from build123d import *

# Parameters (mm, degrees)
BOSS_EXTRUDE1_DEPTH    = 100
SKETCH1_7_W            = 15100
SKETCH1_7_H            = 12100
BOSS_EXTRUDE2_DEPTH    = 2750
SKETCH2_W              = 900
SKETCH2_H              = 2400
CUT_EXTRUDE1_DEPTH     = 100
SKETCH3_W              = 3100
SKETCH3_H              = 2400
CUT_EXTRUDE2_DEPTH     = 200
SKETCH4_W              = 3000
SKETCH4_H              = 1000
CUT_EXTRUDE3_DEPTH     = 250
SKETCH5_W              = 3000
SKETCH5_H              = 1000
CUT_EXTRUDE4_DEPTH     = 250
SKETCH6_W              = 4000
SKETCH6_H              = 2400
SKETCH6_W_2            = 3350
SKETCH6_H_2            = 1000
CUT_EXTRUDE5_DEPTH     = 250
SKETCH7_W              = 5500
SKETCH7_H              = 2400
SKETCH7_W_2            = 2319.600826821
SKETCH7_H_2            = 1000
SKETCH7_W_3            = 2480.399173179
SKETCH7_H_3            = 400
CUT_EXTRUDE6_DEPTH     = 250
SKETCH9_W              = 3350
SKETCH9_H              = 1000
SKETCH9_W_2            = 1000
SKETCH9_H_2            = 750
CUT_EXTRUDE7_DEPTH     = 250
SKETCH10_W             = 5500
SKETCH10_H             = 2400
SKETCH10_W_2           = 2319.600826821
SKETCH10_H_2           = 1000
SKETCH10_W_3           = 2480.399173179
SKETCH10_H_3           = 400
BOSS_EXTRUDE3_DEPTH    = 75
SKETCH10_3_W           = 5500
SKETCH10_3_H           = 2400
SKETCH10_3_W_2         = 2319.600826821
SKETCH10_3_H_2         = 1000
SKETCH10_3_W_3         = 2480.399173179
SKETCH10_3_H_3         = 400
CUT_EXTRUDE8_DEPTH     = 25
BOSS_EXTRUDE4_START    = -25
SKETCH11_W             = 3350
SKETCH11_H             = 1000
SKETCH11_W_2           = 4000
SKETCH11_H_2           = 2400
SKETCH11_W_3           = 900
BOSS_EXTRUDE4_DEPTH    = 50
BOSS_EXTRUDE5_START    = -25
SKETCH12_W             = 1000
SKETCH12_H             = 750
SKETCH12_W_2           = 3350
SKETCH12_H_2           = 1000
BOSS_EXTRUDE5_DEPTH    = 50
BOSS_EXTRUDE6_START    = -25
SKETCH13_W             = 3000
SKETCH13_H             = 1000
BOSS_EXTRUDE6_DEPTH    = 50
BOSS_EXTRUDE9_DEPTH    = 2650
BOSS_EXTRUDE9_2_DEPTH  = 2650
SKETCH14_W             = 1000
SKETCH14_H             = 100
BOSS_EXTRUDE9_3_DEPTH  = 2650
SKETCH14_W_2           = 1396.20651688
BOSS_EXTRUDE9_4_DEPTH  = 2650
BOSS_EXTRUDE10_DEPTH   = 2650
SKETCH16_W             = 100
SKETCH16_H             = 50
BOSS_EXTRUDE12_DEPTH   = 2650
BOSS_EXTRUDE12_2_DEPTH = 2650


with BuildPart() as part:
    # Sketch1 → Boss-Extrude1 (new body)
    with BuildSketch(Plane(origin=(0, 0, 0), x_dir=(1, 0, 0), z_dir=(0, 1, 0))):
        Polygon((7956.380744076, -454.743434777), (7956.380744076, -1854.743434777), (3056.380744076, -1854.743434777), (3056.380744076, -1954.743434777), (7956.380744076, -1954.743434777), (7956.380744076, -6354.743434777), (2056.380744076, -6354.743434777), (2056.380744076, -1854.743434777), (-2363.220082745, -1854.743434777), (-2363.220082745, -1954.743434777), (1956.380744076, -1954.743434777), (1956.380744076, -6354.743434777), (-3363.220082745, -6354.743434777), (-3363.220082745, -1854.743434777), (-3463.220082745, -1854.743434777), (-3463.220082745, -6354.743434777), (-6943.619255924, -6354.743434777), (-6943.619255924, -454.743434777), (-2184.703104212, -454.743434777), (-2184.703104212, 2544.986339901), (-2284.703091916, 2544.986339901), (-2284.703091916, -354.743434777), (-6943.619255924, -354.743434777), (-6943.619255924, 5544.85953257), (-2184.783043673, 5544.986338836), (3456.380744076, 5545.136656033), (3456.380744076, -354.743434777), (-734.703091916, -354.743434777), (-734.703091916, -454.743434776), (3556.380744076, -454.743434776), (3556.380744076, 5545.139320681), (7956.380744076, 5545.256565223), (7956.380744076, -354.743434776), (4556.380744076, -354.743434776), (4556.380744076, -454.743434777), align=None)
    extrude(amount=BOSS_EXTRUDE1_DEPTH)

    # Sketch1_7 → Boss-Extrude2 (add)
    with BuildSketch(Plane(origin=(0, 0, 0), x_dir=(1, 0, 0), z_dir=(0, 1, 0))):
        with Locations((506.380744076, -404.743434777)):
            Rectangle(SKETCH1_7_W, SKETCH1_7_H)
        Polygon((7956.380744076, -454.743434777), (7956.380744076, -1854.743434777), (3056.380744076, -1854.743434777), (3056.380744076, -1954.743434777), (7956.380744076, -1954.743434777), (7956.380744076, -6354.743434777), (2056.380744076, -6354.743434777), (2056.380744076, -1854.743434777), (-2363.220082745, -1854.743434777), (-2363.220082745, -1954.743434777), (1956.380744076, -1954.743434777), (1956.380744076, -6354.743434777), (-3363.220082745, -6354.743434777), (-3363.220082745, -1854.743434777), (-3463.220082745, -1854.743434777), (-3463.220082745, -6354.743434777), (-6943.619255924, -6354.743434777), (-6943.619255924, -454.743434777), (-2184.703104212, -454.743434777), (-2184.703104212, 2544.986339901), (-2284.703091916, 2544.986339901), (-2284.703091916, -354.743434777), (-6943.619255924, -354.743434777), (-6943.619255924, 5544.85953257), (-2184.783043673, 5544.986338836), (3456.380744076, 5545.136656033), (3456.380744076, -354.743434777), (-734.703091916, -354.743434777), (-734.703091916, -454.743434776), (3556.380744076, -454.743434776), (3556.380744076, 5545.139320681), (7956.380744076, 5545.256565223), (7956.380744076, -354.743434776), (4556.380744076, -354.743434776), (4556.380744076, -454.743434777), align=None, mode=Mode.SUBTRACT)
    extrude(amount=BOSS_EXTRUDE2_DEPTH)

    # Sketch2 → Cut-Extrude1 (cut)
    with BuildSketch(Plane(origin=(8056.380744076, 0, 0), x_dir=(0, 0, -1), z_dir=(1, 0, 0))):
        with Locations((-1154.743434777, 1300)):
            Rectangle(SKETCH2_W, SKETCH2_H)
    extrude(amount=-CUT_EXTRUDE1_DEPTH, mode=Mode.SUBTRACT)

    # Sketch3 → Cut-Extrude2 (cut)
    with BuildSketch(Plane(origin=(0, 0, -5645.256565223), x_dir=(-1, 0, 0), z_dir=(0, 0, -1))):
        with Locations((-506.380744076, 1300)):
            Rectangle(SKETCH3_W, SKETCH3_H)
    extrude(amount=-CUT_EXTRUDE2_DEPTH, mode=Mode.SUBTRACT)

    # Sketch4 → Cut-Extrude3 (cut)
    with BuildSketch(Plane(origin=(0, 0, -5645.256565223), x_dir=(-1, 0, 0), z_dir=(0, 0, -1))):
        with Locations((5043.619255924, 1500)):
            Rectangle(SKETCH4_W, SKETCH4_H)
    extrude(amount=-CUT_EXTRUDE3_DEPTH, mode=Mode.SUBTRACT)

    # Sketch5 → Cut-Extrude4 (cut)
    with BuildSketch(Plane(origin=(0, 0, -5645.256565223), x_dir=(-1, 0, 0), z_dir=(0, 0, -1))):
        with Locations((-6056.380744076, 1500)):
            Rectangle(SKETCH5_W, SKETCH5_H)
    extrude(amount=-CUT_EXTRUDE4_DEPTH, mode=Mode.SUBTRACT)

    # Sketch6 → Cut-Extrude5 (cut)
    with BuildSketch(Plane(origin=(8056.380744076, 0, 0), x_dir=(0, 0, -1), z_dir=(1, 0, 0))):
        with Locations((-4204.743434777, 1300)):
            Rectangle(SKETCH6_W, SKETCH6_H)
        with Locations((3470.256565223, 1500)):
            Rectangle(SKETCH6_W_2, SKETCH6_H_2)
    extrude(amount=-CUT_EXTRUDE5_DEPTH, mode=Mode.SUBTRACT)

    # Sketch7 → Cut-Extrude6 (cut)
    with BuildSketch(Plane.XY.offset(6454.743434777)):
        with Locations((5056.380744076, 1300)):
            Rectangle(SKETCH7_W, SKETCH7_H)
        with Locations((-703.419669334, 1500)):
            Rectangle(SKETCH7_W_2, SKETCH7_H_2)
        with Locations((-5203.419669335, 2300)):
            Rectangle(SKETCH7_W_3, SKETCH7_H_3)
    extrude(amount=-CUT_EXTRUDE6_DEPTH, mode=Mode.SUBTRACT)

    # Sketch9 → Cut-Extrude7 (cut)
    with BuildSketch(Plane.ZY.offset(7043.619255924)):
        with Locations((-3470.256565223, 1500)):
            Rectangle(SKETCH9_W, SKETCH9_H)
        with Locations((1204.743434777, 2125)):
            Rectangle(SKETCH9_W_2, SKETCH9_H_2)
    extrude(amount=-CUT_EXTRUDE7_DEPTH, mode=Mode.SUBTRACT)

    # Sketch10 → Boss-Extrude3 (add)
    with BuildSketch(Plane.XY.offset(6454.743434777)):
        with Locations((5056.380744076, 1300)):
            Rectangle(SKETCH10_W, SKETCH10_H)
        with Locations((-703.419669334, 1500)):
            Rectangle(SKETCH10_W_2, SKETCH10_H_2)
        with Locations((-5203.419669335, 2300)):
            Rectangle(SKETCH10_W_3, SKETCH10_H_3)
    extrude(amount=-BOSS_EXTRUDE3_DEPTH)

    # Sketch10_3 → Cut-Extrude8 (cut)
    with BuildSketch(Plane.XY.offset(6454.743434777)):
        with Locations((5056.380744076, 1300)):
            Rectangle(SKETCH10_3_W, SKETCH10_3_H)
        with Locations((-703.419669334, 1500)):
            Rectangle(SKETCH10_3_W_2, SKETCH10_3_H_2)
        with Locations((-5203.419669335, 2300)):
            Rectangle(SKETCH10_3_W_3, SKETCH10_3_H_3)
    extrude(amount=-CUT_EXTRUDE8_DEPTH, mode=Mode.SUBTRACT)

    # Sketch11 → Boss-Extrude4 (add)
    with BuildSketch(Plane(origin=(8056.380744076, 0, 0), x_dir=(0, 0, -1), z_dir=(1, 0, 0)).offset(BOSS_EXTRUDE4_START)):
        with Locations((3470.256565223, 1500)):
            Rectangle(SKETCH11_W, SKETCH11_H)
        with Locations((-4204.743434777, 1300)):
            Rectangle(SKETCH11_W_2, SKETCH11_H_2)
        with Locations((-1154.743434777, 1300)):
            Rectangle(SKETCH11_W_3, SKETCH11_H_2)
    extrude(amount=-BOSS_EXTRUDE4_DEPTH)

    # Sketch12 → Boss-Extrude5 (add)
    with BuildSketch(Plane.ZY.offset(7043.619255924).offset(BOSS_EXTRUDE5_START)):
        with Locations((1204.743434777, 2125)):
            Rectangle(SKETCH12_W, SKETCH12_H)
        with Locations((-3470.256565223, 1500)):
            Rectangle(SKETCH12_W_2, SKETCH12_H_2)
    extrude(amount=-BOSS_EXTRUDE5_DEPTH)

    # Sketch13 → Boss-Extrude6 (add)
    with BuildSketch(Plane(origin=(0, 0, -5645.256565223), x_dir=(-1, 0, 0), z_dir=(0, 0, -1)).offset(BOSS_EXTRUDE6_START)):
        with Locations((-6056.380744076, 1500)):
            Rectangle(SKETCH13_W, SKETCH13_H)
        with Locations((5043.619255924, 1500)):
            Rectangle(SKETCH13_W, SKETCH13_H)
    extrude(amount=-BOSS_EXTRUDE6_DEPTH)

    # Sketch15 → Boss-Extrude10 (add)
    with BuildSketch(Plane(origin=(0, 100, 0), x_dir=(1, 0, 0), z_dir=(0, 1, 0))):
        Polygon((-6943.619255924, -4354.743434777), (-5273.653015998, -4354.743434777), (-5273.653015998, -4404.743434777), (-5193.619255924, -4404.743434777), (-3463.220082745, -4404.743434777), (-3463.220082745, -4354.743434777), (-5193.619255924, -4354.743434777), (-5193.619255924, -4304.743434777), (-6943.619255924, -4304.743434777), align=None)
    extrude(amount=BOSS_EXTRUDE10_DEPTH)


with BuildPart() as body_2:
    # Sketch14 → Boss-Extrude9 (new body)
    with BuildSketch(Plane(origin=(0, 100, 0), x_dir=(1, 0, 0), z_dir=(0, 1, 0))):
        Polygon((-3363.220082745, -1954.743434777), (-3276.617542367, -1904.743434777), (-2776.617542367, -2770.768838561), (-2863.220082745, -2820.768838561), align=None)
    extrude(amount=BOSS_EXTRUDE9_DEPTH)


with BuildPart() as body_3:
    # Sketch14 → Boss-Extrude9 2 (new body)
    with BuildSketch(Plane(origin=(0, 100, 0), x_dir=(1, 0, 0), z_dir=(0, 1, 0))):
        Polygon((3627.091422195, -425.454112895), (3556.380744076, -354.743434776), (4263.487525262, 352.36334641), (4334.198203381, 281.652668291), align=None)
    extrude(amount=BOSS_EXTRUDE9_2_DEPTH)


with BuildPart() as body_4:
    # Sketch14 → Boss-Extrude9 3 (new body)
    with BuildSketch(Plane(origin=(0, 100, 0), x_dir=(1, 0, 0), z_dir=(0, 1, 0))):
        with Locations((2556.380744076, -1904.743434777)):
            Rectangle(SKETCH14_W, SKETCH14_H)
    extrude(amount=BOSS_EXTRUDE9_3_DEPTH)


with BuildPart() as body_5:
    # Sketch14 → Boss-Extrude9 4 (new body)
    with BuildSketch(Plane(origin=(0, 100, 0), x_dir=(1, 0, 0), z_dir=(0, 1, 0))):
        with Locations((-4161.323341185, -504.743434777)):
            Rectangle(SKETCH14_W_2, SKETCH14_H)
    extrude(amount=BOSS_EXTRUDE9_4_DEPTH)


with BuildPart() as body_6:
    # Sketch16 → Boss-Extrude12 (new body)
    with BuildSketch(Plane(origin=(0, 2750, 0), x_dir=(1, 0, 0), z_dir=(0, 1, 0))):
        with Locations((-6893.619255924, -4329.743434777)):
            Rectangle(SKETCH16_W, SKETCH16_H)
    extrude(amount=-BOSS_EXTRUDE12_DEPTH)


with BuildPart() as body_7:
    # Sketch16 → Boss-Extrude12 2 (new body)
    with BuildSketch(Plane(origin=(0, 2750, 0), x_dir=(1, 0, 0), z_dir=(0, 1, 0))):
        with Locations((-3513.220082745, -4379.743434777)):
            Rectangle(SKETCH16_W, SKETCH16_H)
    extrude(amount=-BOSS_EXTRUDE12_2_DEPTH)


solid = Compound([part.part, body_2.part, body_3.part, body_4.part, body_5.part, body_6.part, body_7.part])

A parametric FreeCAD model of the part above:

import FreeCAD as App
import Part
import Sketcher
from FreeCAD import Vector
Q = App.Units.Quantity


def add_polygon(sketch, points):
    """Adds a closed chain of lines whose ends are joined by coincident constraints."""
    first, n = sketch.GeometryCount, len(points)
    for a, b in zip(points, points[1:] + points[:1]):
        sketch.addGeometry(Part.LineSegment(App.Vector(*a, 0), App.Vector(*b, 0)), False)
    for i in range(n):
        sketch.addConstraint(Sketcher.Constraint("Coincident", first + i, 2, first + (i + 1) % n, 1))

doc = App.newDocument("Part")
params = doc.addObject("Spreadsheet::Sheet", "Params")
for row, (alias, value) in enumerate([
    ("sketch1_width", "3400 mm"),
    ("sketch1_width2", "100 mm"),
    ("sketch1_width3", "5900 mm"),
    ("sketch1_width4", "4900 mm"),
    ("sketch1_height", "1400 mm"),
    ("pad1_length", "100 mm"),
    ("sketch2_width", "15100 mm"),
    ("sketch2_width2", "3400 mm"),
    ("sketch2_width3", "4900 mm"),
    ("sketch2_width4", "5900 mm"),
    ("sketch2_width5", "100 mm"),
    ("pad2_length", "2750 mm"),
    ("sketch3_width", "2400 mm"),
    ("sketch3_height", "900 mm"),
    ("pocket1_length", "100 mm"),
    ("sketch4_width", "3100 mm"),
    ("sketch4_height", "2400 mm"),
    ("pocket2_length", "200 mm"),
    ("sketch5_width", "3000 mm"),
    ("sketch5_height", "1000 mm"),
    ("pocket3_length", "250 mm"),
    ("sketch6_width", "3000 mm"),
    ("sketch6_height", "1000 mm"),
    ("pocket4_length", "250 mm"),
    ("sketch7_width", "2400 mm"),
    ("sketch7_width2", "1000 mm"),
    ("sketch7_height", "4000 mm"),
    ("sketch7_height2", "3350 mm"),
    ("pocket5_length", "250 mm"),
    ("sketch8_width", "5500 mm"),
    ("sketch8_height", "2400 mm"),
    ("sketch8_height2", "1000 mm"),
    ("sketch8_height3", "400 mm"),
    ("pocket6_length", "250 mm"),
    ("sketch9_width", "1000 mm"),
    ("sketch9_width2", "750 mm"),
    ("sketch9_height", "3350 mm"),
    ("pocket7_length", "250 mm"),
    ("sketch10_width", "5500 mm"),
    ("sketch10_height", "2400 mm"),
    ("sketch10_height2", "1000 mm"),
    ("sketch10_height3", "400 mm"),
    ("pad3_length", "75 mm"),
    ("sketch11_width", "5500 mm"),
    ("sketch11_height", "2400 mm"),
    ("sketch11_height2", "1000 mm"),
    ("sketch11_height3", "400 mm"),
    ("pocket8_length", "25 mm"),
    ("sketch12_width", "1000 mm"),
    ("sketch12_width2", "2400 mm"),
    ("sketch12_height", "3350 mm"),
    ("sketch12_height2", "4000 mm"),
    ("sketch12_height3", "900 mm"),
    ("pad4_length", "50 mm"),
    ("sketch13_width", "750 mm"),
    ("sketch13_width2", "1000 mm"),
    ("sketch13_height", "3350 mm"),
    ("pad5_length", "50 mm"),
    ("sketch14_width", "3000 mm"),
    ("sketch14_height", "1000 mm"),
    ("pad6_length", "50 mm"),
    ("sketch15_width", "1750 mm"),
    ("sketch15_height", "50 mm"),
    ("pad7_length", "2650 mm"),
    ("sketch16_length", "100 mm"),
    ("sketch16_length2", "1000 mm"),
    ("pad8_length", "2650 mm"),
    ("sketch17_length", "100 mm"),
    ("sketch17_length2", "1000 mm"),
    ("pad9_length", "2650 mm"),
    ("sketch18_width", "1000 mm"),
    ("sketch18_height", "100 mm"),
    ("pad10_length", "2650 mm"),
    ("sketch19_height", "100 mm"),
    ("pad11_length", "2650 mm"),
    ("sketch20_width", "100 mm"),
    ("sketch20_height", "50 mm"),
    ("pad12_length", "2650 mm"),
    ("sketch21_width", "100 mm"),
    ("sketch21_height", "50 mm"),
    ("pad13_length", "2650 mm"),
], start=1):
    params.set(f"A{row}", alias)
    params.set(f"B{row}", "=" + value)
    params.setAlias(f"B{row}", alias)

body = doc.addObject("PartDesign::Body", "Body")

sketch1 = body.newObject("Sketcher::SketchObject", "Sketch")
sketch1.AttachmentSupport = (doc.getObject("XZ_Plane"), [""])
sketch1.MapMode = "FlatFace"
add_polygon(sketch1, [(7956.380744, 1854.743435), (7956.380744, 454.743435), (4556.380744, 454.743435), (4556.380744, 354.743435), (7956.380744, 354.743435), (7956.380744, -5545.256565), (3556.380744, -5545.139321), (3556.380744, 454.743435), (-734.703092, 454.743435), (-734.703092, 354.743435), (3456.380744, 354.743435), (3456.380744, -5545.136656), (-6943.619256, -5544.859533), (-6943.619256, 354.743435), (-2284.703092, 354.743435), (-2284.703092, -2544.98634), (-2184.703104, -2544.98634), (-2184.703104, 454.743435), (-6943.619256, 454.743435), (-6943.619256, 6354.743435), (-3463.220083, 6354.743435), (-3463.220083, 1854.743435), (-3363.220083, 1854.743435), (-3363.220083, 6354.743435), (1956.380744, 6354.743435), (1956.380744, 1954.743435), (-2363.220083, 1954.743435), (-2363.220083, 1854.743435), (2056.380744, 1854.743435), (2056.380744, 6354.743435), (7956.380744, 6354.743435), (7956.380744, 1954.743435), (3056.380744, 1954.743435), (3056.380744, 1854.743435)])
sketch1.addConstraint([
    Sketcher.Constraint("Vertical", 0),
    Sketcher.Constraint("Horizontal", 1),
    Sketcher.Constraint("Vertical", 2),
    Sketcher.Constraint("Horizontal", 3),
    Sketcher.Constraint("Vertical", 4),
    Sketcher.Constraint("Vertical", 6),
    Sketcher.Constraint("Horizontal", 7),
    Sketcher.Constraint("Vertical", 8),
    Sketcher.Constraint("Horizontal", 9),
    Sketcher.Constraint("Vertical", 10),
    Sketcher.Constraint("Vertical", 12),
    Sketcher.Constraint("Horizontal", 13),
    Sketcher.Constraint("Vertical", 14),
    Sketcher.Constraint("Horizontal", 15),
    Sketcher.Constraint("Vertical", 16),
    Sketcher.Constraint("Horizontal", 17),
    Sketcher.Constraint("Vertical", 18),
    Sketcher.Constraint("Horizontal", 19),
    Sketcher.Constraint("Vertical", 20),
    Sketcher.Constraint("Horizontal", 21),
    Sketcher.Constraint("Vertical", 22),
    Sketcher.Constraint("Horizontal", 23),
    Sketcher.Constraint("Vertical", 24),
    Sketcher.Constraint("Horizontal", 25),
    Sketcher.Constraint("Vertical", 26),
    Sketcher.Constraint("Horizontal", 27),
    Sketcher.Constraint("Vertical", 28),
    Sketcher.Constraint("Horizontal", 29),
    Sketcher.Constraint("Vertical", 30),
    Sketcher.Constraint("Horizontal", 31),
    Sketcher.Constraint("Vertical", 32),
    Sketcher.Constraint("Horizontal", 33),
    Sketcher.Constraint("Parallel", 5, 11),
    Sketcher.Constraint("Horizontal", 1, 2, 6, 2),
    Sketcher.Constraint("Horizontal", 3, 2, 8, 2),
    Sketcher.Constraint("Horizontal", 9, 2, 12, 2),
    Sketcher.Constraint("Horizontal", 7, 2, 16, 2),
    Sketcher.Constraint("Horizontal", 19, 2, 22, 2),
    Sketcher.Constraint("Horizontal", 21, 2, 26, 2),
    Sketcher.Constraint("Horizontal", 23, 2, 28, 2),
    Sketcher.Constraint("Horizontal", 25, 2, 30, 2),
    Sketcher.Constraint("Horizontal", 27, 2, 32, 2),
    Sketcher.Constraint("Vertical", 0, 2, 3, 2),
    Sketcher.Constraint("Vertical", 12, 2, 17, 2),
    Sketcher.Constraint("Vertical", 4, 2, 29, 2),
    Sketcher.Constraint("Equal", 21, 2),
    Sketcher.Constraint("Equal", 29, 4),
    Sketcher.Constraint("Equal", 4, 18),
    Sketcher.Constraint("Equal", 8, 26),
    Sketcher.Constraint("DistanceX", 1, 2, 1, 1, Q("3400 mm")),
    Sketcher.Constraint("DistanceX", 21, 1, 21, 2, Q("100 mm")),
    Sketcher.Constraint("DistanceX", 29, 1, 29, 2, Q("5900 mm")),
    Sketcher.Constraint("DistanceX", 31, 2, 31, 1, Q("4900 mm")),
    Sketcher.Constraint("DistanceY", 0, 2, 0, 1, Q("1400 mm")),
    Sketcher.Constraint("Distance", 5, Q("4400.000002 mm")),
    Sketcher.Constraint("DistanceX", 9, 2, 6, 2, Q("100 mm")),
    Sketcher.Constraint("DistanceX", 11, 2, 10, 2, Q("10400 mm")),
    Sketcher.Constraint("DistanceX", 13, 2, 8, 2, Q("1550 mm")),
    Sketcher.Constraint("DistanceX", 23, 2, 6, 2, Q("1600 mm")),
    Sketcher.Constraint("DistanceX", 21, 2, 25, 2, Q("1000 mm")),
    Sketcher.Constraint("DistanceX", 17, 2, 17, 1, Q("4758.916152 mm")),
    Sketcher.Constraint("DistanceY", 10, 2, 10, 1, Q("5899.880091 mm")),
    Sketcher.Constraint("DistanceX", 7, 2, 7, 1, Q("4291.083836 mm")),
    Sketcher.Constraint("DistanceX", 19, 1, 19, 2, Q("3480.399173 mm")),
    Sketcher.Constraint("DistanceY", 6, 1, 6, 2, Q("5999.882755 mm")),
    Sketcher.Constraint("DistanceY", 14, 2, 14, 1, Q("2899.729775 mm")),
    Sketcher.Constraint("DistanceY", 5, 2, -1, 1, Q("5545.139321 mm")),
    Sketcher.Constraint("DistanceX", 7, 2, -1, 1, Q("734.703092 mm")),
])
sketch1.setExpression("Constraints[83]", "Params.sketch1_width")
sketch1.setExpression("Constraints[84]", "Params.sketch1_width2")
sketch1.setExpression("Constraints[85]", "Params.sketch1_width3")
sketch1.setExpression("Constraints[86]", "Params.sketch1_width4")
sketch1.setExpression("Constraints[87]", "Params.sketch1_height")
pad1 = body.newObject("PartDesign::Pad", "Pad")
pad1.Profile = sketch1
pad1.setExpression("Length", "Params.pad1_length")
pad1.Reversed = True

sketch2 = body.newObject("Sketcher::SketchObject", "Sketch001")
sketch2.AttachmentSupport = (doc.getObject("XZ_Plane"), [""])
sketch2.MapMode = "FlatFace"
add_polygon(sketch2, [(-7043.619256, -5645.256565), (-7043.619256, 6454.743435), (8056.380744, 6454.743435), (8056.380744, -5645.256565)])
add_polygon(sketch2, [(4556.380744, 454.743435), (7956.380744, 454.743435), (7956.380744, 1854.743435), (3056.380744, 1854.743435), (3056.380744, 1954.743435), (7956.380744, 1954.743435), (7956.380744, 6354.743435), (2056.380744, 6354.743435), (2056.380744, 1854.743435), (-2363.220083, 1854.743435), (-2363.220083, 1954.743435), (1956.380744, 1954.743435), (1956.380744, 6354.743435), (-3363.220083, 6354.743435), (-3363.220083, 1854.743435), (-3463.220083, 1854.743435), (-3463.220083, 6354.743435), (-6943.619256, 6354.743435), (-6943.619256, 454.743435), (-2184.703104, 454.743435), (-2184.703104, -2544.98634), (-2284.703092, -2544.98634), (-2284.703092, 354.743435), (-6943.619256, 354.743435), (-6943.619256, -5544.859533), (3456.380744, -5545.136656), (3456.380744, 354.743435), (-734.703092, 354.743435), (-734.703092, 454.743435), (3556.380744, 454.743435), (3556.380744, -5545.139321), (7956.380744, -5545.256565), (7956.380744, 354.743435), (4556.380744, 354.743435)])
sketch2.addConstraint([
    Sketcher.Constraint("Vertical", 0),
    Sketcher.Constraint("Horizontal", 1),
    Sketcher.Constraint("Vertical", 2),
    Sketcher.Constraint("Horizontal", 3),
    Sketcher.Constraint("Horizontal", 4),
    Sketcher.Constraint("Vertical", 5),
    Sketcher.Constraint("Horizontal", 6),
    Sketcher.Constraint("Vertical", 7),
    Sketcher.Constraint("Horizontal", 8),
    Sketcher.Constraint("Vertical", 9),
    Sketcher.Constraint("Horizontal", 10),
    Sketcher.Constraint("Vertical", 11),
    Sketcher.Constraint("Horizontal", 12),
    Sketcher.Constraint("Vertical", 13),
    Sketcher.Constraint("Horizontal", 14),
    Sketcher.Constraint("Vertical", 15),
    Sketcher.Constraint("Horizontal", 16),
    Sketcher.Constraint("Vertical", 17),
    Sketcher.Constraint("Horizontal", 18),
    Sketcher.Constraint("Vertical", 19),
    Sketcher.Constraint("Horizontal", 20),
    Sketcher.Constraint("Vertical", 21),
    Sketcher.Constraint("Horizontal", 22),
    Sketcher.Constraint("Vertical", 23),
    Sketcher.Constraint("Horizontal", 24),
    Sketcher.Constraint("Vertical", 25),
    Sketcher.Constraint("Horizontal", 26),
    Sketcher.Constraint("Vertical", 27),
    Sketcher.Constraint("Vertical", 29),
    Sketcher.Constraint("Horizontal", 30),
    Sketcher.Constraint("Vertical", 31),
    Sketcher.Constraint("Horizontal", 32),
    Sketcher.Constraint("Vertical", 33),
    Sketcher.Constraint("Vertical", 35),
    Sketcher.Constraint("Horizontal", 36),
    Sketcher.Constraint("Vertical", 37),
    Sketcher.Constraint("Parallel", 28, 34),
    Sketcher.Constraint("Horizontal", 6, 2, 11, 2),
    Sketcher.Constraint("Horizontal", 8, 2, 13, 2),
    Sketcher.Constraint("Horizontal", 10, 2, 15, 2),
    Sketcher.Constraint("Horizontal", 12, 2, 17, 2),
    Sketcher.Constraint("Horizontal", 16, 2, 19, 2),
    Sketcher.Constraint("Horizontal", 4, 2, 21, 2),
    Sketcher.Constraint("Horizontal", 26, 2, 29, 2),
    Sketcher.Constraint("Horizontal", 22, 2, 31, 2),
    Sketcher.Constraint("Horizontal", 30, 2, 35, 2),
    Sketcher.Constraint("Vertical", 5, 2, 8, 2),
    Sketcher.Constraint("Vertical", 21, 2, 26, 2),
    Sketcher.Constraint("Vertical", 9, 2, 34, 2),
    Sketcher.Constraint("Equal", 18, 7),
    Sketcher.Constraint("Equal", 10, 21),
    Sketcher.Constraint("Equal", 13, 31),
    Sketcher.Constraint("Equal", 21, 35),
    Sketcher.Constraint("DistanceX", 1, 1, 1, 2, Q("15100 mm")),
    Sketcher.Constraint("DistanceX", 4, 1, 4, 2, Q("3400 mm")),
    Sketcher.Constraint("DistanceX", 6, 2, 6, 1, Q("4900 mm")),
    Sketcher.Constraint("DistanceX", 10, 2, 10, 1, Q("5900 mm")),
    Sketcher.Constraint("DistanceX", 18, 2, 18, 1, Q("100 mm")),
    Sketcher.Constraint("DistanceY", 0, 1, 0, 2, Q("12100 mm")),
    Sketcher.Constraint("DistanceY", 5, 1, 5, 2, Q("1400 mm")),
    Sketcher.Constraint("Distance", 34, Q("4400.000002 mm")),
    Sketcher.Constraint("DistanceX", 4, 2, 1, 2, Q("100 mm")),
    Sketcher.Constraint("DistanceY", 4, 2, 1, 2, Q("6000 mm")),
    Sketcher.Constraint("DistanceX", 14, 2, 11, 2, Q("100 mm")),
    Sketcher.Constraint("DistanceX", 16, 2, 13, 2, Q("1000 mm")),
    Sketcher.Constraint("DistanceX", 0, 2, 20, 2, Q("100 mm")),
    Sketcher.Constraint("DistanceX", 28, 2, 2, 2, Q("4600 mm")),
    Sketcher.Constraint("DistanceX", 25, 2, 30, 2, Q("1550 mm")),
    Sketcher.Constraint("DistanceX", 22, 1, 22, 2, Q("4758.916152 mm")),
    Sketcher.Constraint("DistanceY", 29, 1, 29, 2, Q("5899.880091 mm")),
    Sketcher.Constraint("DistanceX", 12, 2, 12, 1, Q("4419.600827 mm")),
    Sketcher.Constraint("DistanceX", 24, 2, 24, 1, Q("99.999988 mm")),
    Sketcher.Constraint("DistanceY", 23, 2, 23, 1, Q("2999.729775 mm")),
    Sketcher.Constraint("DistanceY", 27, 2, 27, 1, Q("5899.602967 mm")),
    Sketcher.Constraint("DistanceY", 23, 2, -1, 1, Q("2544.98634 mm")),
    Sketcher.Constraint("DistanceX", 24, 2, -1, 1, Q("2284.703092 mm")),
])
sketch2.setExpression("Constraints[91]", "Params.sketch2_width")
sketch2.setExpression("Constraints[92]", "Params.sketch2_width2")
sketch2.setExpression("Constraints[93]", "Params.sketch2_width3")
sketch2.setExpression("Constraints[94]", "Params.sketch2_width4")
sketch2.setExpression("Constraints[95]", "Params.sketch2_width5")
pad2 = body.newObject("PartDesign::Pad", "Pad001")
pad2.Profile = sketch2
pad2.setExpression("Length", "Params.pad2_length")
pad2.Reversed = True

sketch3 = body.newObject("Sketcher::SketchObject", "Sketch002")
sketch3.AttachmentSupport = (doc.getObject("YZ_Plane"), [""])
sketch3.MapMode = "FlatFace"
sketch3.AttachmentOffset = App.Placement(Vector(0, 0, 8056.380744), App.Rotation())
add_polygon(sketch3, [(2500, 1604.743435), (100, 1604.743435), (100, 704.743435), (2500, 704.743435)])
sketch3.addConstraint([
    Sketcher.Constraint("Horizontal", 0),
    Sketcher.Constraint("Vertical", 1),
    Sketcher.Constraint("Horizontal", 2),
    Sketcher.Constraint("Vertical", 3),
    Sketcher.Constraint("DistanceX", 0, 2, 0, 1, Q("2400 mm")),
    Sketcher.Constraint("DistanceY", 1, 2, 1, 1, Q("900 mm")),
    Sketcher.Constraint("DistanceX", -1, 1, 0, 2, Q("100 mm")),
    Sketcher.Constraint("DistanceY", -1, 1, 0, 2, Q("1604.743435 mm")),
])
sketch3.setExpression("Constraints[8]", "Params.sketch3_width")
sketch3.setExpression("Constraints[9]", "Params.sketch3_height")
pocket1 = body.newObject("PartDesign::Pocket", "Pocket")
pocket1.Profile = sketch3
pocket1.setExpression("Length", "Params.pocket1_length")

sketch4 = body.newObject("Sketcher::SketchObject", "Sketch003")
sketch4.AttachmentSupport = (doc.getObject("XY_Plane"), [""])
sketch4.MapMode = "FlatFace"
sketch4.AttachmentOffset = App.Placement(Vector(0, 0, -5645.256565), App.Rotation())
add_polygon(sketch4, [(2056.380744, 2500), (2056.380744, 100), (-1043.619256, 100), (-1043.619256, 2500)])
sketch4.addConstraint([
    Sketcher.Constraint("Vertical", 0),
    Sketcher.Constraint("Horizontal", 1),
    Sketcher.Constraint("Vertical", 2),
    Sketcher.Constraint("Horizontal", 3),
    Sketcher.Constraint("DistanceX", 1, 2, 1, 1, Q("3100 mm")),
    Sketcher.Constraint("DistanceY", 0, 2, 0, 1, Q("2400 mm")),
    Sketcher.Constraint("DistanceY", -1, 1, 0, 2, Q("100 mm")),
    Sketcher.Constraint("DistanceX", -1, 1, 0, 2, Q("2056.380744 mm")),
])
sketch4.setExpression("Constraints[8]", "Params.sketch4_width")
sketch4.setExpression("Constraints[9]", "Params.sketch4_height")
pocket2 = body.newObject("PartDesign::Pocket", "Pocket001")
pocket2.Profile = sketch4
pocket2.setExpression("Length", "Params.pocket2_length")
pocket2.Reversed = True

sketch5 = body.newObject("Sketcher::SketchObject", "Sketch004")
sketch5.AttachmentSupport = (doc.getObject("XY_Plane"), [""])
sketch5.MapMode = "FlatFace"
sketch5.AttachmentOffset = App.Placement(Vector(0, 0, -5645.256565), App.Rotation())
add_polygon(sketch5, [(-3543.619256, 2000), (-3543.619256, 1000), (-6543.619256, 1000), (-6543.619256, 2000)])
sketch5.addConstraint([
    Sketcher.Constraint("Vertical", 0),
    Sketcher.Constraint("Horizontal", 1),
    Sketcher.Constraint("Vertical", 2),
    Sketcher.Constraint("Horizontal", 3),
    Sketcher.Constraint("DistanceX", 1, 2, 1, 1, Q("3000 mm")),
    Sketcher.Constraint("DistanceY", 0, 2, 0, 1, Q("1000 mm")),
    Sketcher.Constraint("DistanceY", -1, 1, 0, 2, Q("1000 mm")),
    Sketcher.Constraint("DistanceX", 0, 2, -1, 1, Q("3543.619256 mm")),
])
sketch5.setExpression("Constraints[8]", "Params.sketch5_width")
sketch5.setExpression("Constraints[9]", "Params.sketch5_height")
pocket3 = body.newObject("PartDesign::Pocket", "Pocket002")
pocket3.Profile = sketch5
pocket3.setExpression("Length", "Params.pocket3_length")
pocket3.Reversed = True

sketch6 = body.newObject("Sketcher::SketchObject", "Sketch005")
sketch6.AttachmentSupport = (doc.getObject("XY_Plane"), [""])
sketch6.MapMode = "FlatFace"
sketch6.AttachmentOffset = App.Placement(Vector(0, 0, -5645.256565), App.Rotation())
add_polygon(sketch6, [(7556.380744, 2000), (7556.380744, 1000), (4556.380744, 1000), (4556.380744, 2000)])
sketch6.addConstraint([
    Sketcher.Constraint("Vertical", 0),
    Sketcher.Constraint("Horizontal", 1),
    Sketcher.Constraint("Vertical", 2),
    Sketcher.Constraint("Horizontal", 3),
    Sketcher.Constraint("DistanceX", 1, 2, 1, 1, Q("3000 mm")),
    Sketcher.Constraint("DistanceY", 0, 2, 0, 1, Q("1000 mm")),
    Sketcher.Constraint("DistanceY", -1, 1, 0, 2, Q("1000 mm")),
    Sketcher.Constraint("DistanceX", -1, 1, 0, 2, Q("7556.380744 mm")),
])
sketch6.setExpression("Constraints[8]", "Params.sketch6_width")
sketch6.setExpression("Constraints[9]", "Params.sketch6_height")
pocket4 = body.newObject("PartDesign::Pocket", "Pocket003")
pocket4.Profile = sketch6
pocket4.setExpression("Length", "Params.pocket4_length")
pocket4.Reversed = True

sketch7 = body.newObject("Sketcher::SketchObject", "Sketch006")
sketch7.AttachmentSupport = (doc.getObject("YZ_Plane"), [""])
sketch7.MapMode = "FlatFace"
sketch7.AttachmentOffset = App.Placement(Vector(0, 0, 8056.380744), App.Rotation())
add_polygon(sketch7, [(2500, 6204.743435), (100, 6204.743435), (100, 2204.743435), (2500, 2204.743435)])
add_polygon(sketch7, [(2000, -1795.256565), (1000, -1795.256565), (1000, -5145.256565), (2000, -5145.256565)])
sketch7.addConstraint([
    Sketcher.Constraint("Horizontal", 0),
    Sketcher.Constraint("Vertical", 1),
    Sketcher.Constraint("Horizontal", 2),
    Sketcher.Constraint("Vertical", 3),
    Sketcher.Constraint("Horizontal", 4),
    Sketcher.Constraint("Vertical", 5),
    Sketcher.Constraint("Horizontal", 6),
    Sketcher.Constraint("Vertical", 7),
    Sketcher.Constraint("DistanceX", 0, 2, 0, 1, Q("2400 mm")),
    Sketcher.Constraint("DistanceX", 4, 2, 4, 1, Q("1000 mm")),
    Sketcher.Constraint("DistanceY", 1, 2, 1, 1, Q("4000 mm")),
    Sketcher.Constraint("DistanceY", 5, 2, 5, 1, Q("3350 mm")),
    Sketcher.Constraint("DistanceX", -1, 1, 0, 2, Q("100 mm")),
    Sketcher.Constraint("DistanceX", -1, 1, 4, 2, Q("1000 mm")),
    Sketcher.Constraint("DistanceY", 4, 2, 1, 2, Q("4000 mm")),
    Sketcher.Constraint("DistanceY", -1, 1, 0, 2, Q("6204.743435 mm")),
])
sketch7.setExpression("Constraints[16]", "Params.sketch7_width")
sketch7.setExpression("Constraints[17]", "Params.sketch7_width2")
sketch7.setExpression("Constraints[18]", "Params.sketch7_height")
sketch7.setExpression("Constraints[19]", "Params.sketch7_height2")
pocket5 = body.newObject("PartDesign::Pocket", "Pocket004")
pocket5.Profile = sketch7
pocket5.setExpression("Length", "Params.pocket5_length")

sketch8 = body.newObject("Sketcher::SketchObject", "Sketch007")
sketch8.AttachmentSupport = (doc.getObject("XY_Plane"), [""])
sketch8.MapMode = "FlatFace"
sketch8.AttachmentOffset = App.Placement(Vector(0, 0, 6454.743435), App.Rotation())
add_polygon(sketch8, [(2306.380744, 2500), (2306.380744, 100), (7806.380744, 100), (7806.380744, 2500)])
add_polygon(sketch8, [(-1863.220083, 2000), (-1863.220083, 1000), (456.380744, 1000), (456.380744, 2000)])
add_polygon(sketch8, [(-6443.619256, 2500), (-6443.619256, 2100), (-3963.220083, 2100), (-3963.220083, 2500)])
sketch8.addConstraint([
    Sketcher.Constraint("Vertical", 0),
    Sketcher.Constraint("Horizontal", 1),
    Sketcher.Constraint("Vertical", 2),
    Sketcher.Constraint("Horizontal", 3),
    Sketcher.Constraint("Vertical", 4),
    Sketcher.Constraint("Horizontal", 5),
    Sketcher.Constraint("Vertical", 6),
    Sketcher.Constraint("Horizontal", 7),
    Sketcher.Constraint("Vertical", 8),
    Sketcher.Constraint("Horizontal", 9),
    Sketcher.Constraint("Vertical", 10),
    Sketcher.Constraint("Horizontal", 11),
    Sketcher.Constraint("Horizontal", 3, 2, 10, 2),
    Sketcher.Constraint("DistanceX", 1, 1, 1, 2, Q("5500 mm")),
    Sketcher.Constraint("DistanceY", 0, 2, 0, 1, Q("2400 mm")),
    Sketcher.Constraint("DistanceY", 4, 2, 4, 1, Q("1000 mm")),
    Sketcher.Constraint("DistanceY", 8, 2, 8, 1, Q("400 mm")),
    Sketcher.Constraint("DistanceY", -1, 1, 0, 2, Q("100 mm")),
    Sketcher.Constraint("DistanceY", -1, 1, 4, 2, Q("1000 mm")),
    Sketcher.Constraint("DistanceX", 5, 2, 0, 2, Q("1850 mm")),
    Sketcher.Constraint("DistanceX", 8, 2, 6, 2, Q("6900 mm")),
    Sketcher.Constraint("DistanceX", 9, 2, 7, 2, Q("2100 mm")),
    Sketcher.Constraint("DistanceX", 5, 1, 5, 2, Q("2319.600827 mm")),
    Sketcher.Constraint("DistanceX", -1, 1, 0, 2, Q("2306.380744 mm")),
])
sketch8.setExpression("Constraints[25]", "Params.sketch8_width")
sketch8.setExpression("Constraints[26]", "Params.sketch8_height")
sketch8.setExpression("Constraints[27]", "Params.sketch8_height2")
sketch8.setExpression("Constraints[28]", "Params.sketch8_height3")
pocket6 = body.newObject("PartDesign::Pocket", "Pocket005")
pocket6.Profile = sketch8
pocket6.setExpression("Length", "Params.pocket6_length")

sketch9 = body.newObject("Sketcher::SketchObject", "Sketch008")
sketch9.AttachmentSupport = (doc.getObject("YZ_Plane"), [""])
sketch9.MapMode = "FlatFace"
sketch9.AttachmentOffset = App.Placement(Vector(0, 0, -7043.619256), App.Rotation())
add_polygon(sketch9, [(2000, -5145.256565), (1000, -5145.256565), (1000, -1795.256565), (2000, -1795.256565)])
add_polygon(sketch9, [(2500, 704.743435), (1750, 704.743435), (1750, 1704.743435), (2500, 1704.743435)])
sketch9.addConstraint([
    Sketcher.Constraint("Horizontal", 0),
    Sketcher.Constraint("Vertical", 1),
    Sketcher.Constraint("Horizontal", 2),
    Sketcher.Constraint("Vertical", 3),
    Sketcher.Constraint("Horizontal", 4),
    Sketcher.Constraint("Vertical", 5),
    Sketcher.Constraint("Horizontal", 6),
    Sketcher.Constraint("Vertical", 7),
    Sketcher.Constraint("Equal", 2, 5),
    Sketcher.Constraint("DistanceX", 0, 2, 0, 1, Q("1000 mm")),
    Sketcher.Constraint("DistanceX", 4, 2, 4, 1, Q("750 mm")),
    Sketcher.Constraint("DistanceY", 1, 1, 1, 2, Q("3350 mm")),
    Sketcher.Constraint("DistanceX", -1, 1, 0, 2, Q("1000 mm")),
    Sketcher.Constraint("DistanceX", -1, 1, 4, 2, Q("1750 mm")),
    Sketcher.Constraint("DistanceY", 2, 2, 4, 2, Q("2500 mm")),
    Sketcher.Constraint("DistanceY", 0, 2, -1, 1, Q("5145.256565 mm")),
])
sketch9.setExpression("Constraints[17]", "Params.sketch9_width")
sketch9.setExpression("Constraints[18]", "Params.sketch9_width2")
sketch9.setExpression("Constraints[19]", "Params.sketch9_height")
pocket7 = body.newObject("PartDesign::Pocket", "Pocket006")
pocket7.Profile = sketch9
pocket7.setExpression("Length", "Params.pocket7_length")
pocket7.Reversed = True

sketch10 = body.newObject("Sketcher::SketchObject", "Sketch009")
sketch10.AttachmentSupport = (doc.getObject("XY_Plane"), [""])
sketch10.MapMode = "FlatFace"
sketch10.AttachmentOffset = App.Placement(Vector(0, 0, 6454.743435), App.Rotation())
add_polygon(sketch10, [(2306.380744, 2500), (2306.380744, 100), (7806.380744, 100), (7806.380744, 2500)])
add_polygon(sketch10, [(-1863.220083, 2000), (-1863.220083, 1000), (456.380744, 1000), (456.380744, 2000)])
add_polygon(sketch10, [(-6443.619256, 2500), (-6443.619256, 2100), (-3963.220083, 2100), (-3963.220083, 2500)])
sketch10.addConstraint([
    Sketcher.Constraint("Vertical", 0),
    Sketcher.Constraint("Horizontal", 1),
    Sketcher.Constraint("Vertical", 2),
    Sketcher.Constraint("Horizontal", 3),
    Sketcher.Constraint("Vertical", 4),
    Sketcher.Constraint("Horizontal", 5),
    Sketcher.Constraint("Vertical", 6),
    Sketcher.Constraint("Horizontal", 7),
    Sketcher.Constraint("Vertical", 8),
    Sketcher.Constraint("Horizontal", 9),
    Sketcher.Constraint("Vertical", 10),
    Sketcher.Constraint("Horizontal", 11),
    Sketcher.Constraint("Horizontal", 3, 2, 10, 2),
    Sketcher.Constraint("DistanceX", 1, 1, 1, 2, Q("5500 mm")),
    Sketcher.Constraint("DistanceY", 0, 2, 0, 1, Q("2400 mm")),
    Sketcher.Constraint("DistanceY", 4, 2, 4, 1, Q("1000 mm")),
    Sketcher.Constraint("DistanceY", 8, 2, 8, 1, Q("400 mm")),
    Sketcher.Constraint("DistanceY", -1, 1, 0, 2, Q("100 mm")),
    Sketcher.Constraint("DistanceY", -1, 1, 4, 2, Q("1000 mm")),
    Sketcher.Constraint("DistanceX", 5, 2, 0, 2, Q("1850 mm")),
    Sketcher.Constraint("DistanceX", 8, 2, 6, 2, Q("6900 mm")),
    Sketcher.Constraint("DistanceX", 9, 2, 7, 2, Q("2100 mm")),
    Sketcher.Constraint("DistanceX", 5, 1, 5, 2, Q("2319.600827 mm")),
    Sketcher.Constraint("DistanceX", -1, 1, 0, 2, Q("2306.380744 mm")),
])
sketch10.setExpression("Constraints[25]", "Params.sketch10_width")
sketch10.setExpression("Constraints[26]", "Params.sketch10_height")
sketch10.setExpression("Constraints[27]", "Params.sketch10_height2")
sketch10.setExpression("Constraints[28]", "Params.sketch10_height3")
pad3 = body.newObject("PartDesign::Pad", "Pad002")
pad3.Profile = sketch10
pad3.setExpression("Length", "Params.pad3_length")
pad3.Reversed = True

sketch11 = body.newObject("Sketcher::SketchObject", "Sketch010")
sketch11.AttachmentSupport = (doc.getObject("XY_Plane"), [""])
sketch11.MapMode = "FlatFace"
sketch11.AttachmentOffset = App.Placement(Vector(0, 0, 6454.743435), App.Rotation())
add_polygon(sketch11, [(2306.380744, 2500), (2306.380744, 100), (7806.380744, 100), (7806.380744, 2500)])
add_polygon(sketch11, [(-1863.220083, 2000), (-1863.220083, 1000), (456.380744, 1000), (456.380744, 2000)])
add_polygon(sketch11, [(-6443.619256, 2500), (-6443.619256, 2100), (-3963.220083, 2100), (-3963.220083, 2500)])
sketch11.addConstraint([
    Sketcher.Constraint("Vertical", 0),
    Sketcher.Constraint("Horizontal", 1),
    Sketcher.Constraint("Vertical", 2),
    Sketcher.Constraint("Horizontal", 3),
    Sketcher.Constraint("Vertical", 4),
    Sketcher.Constraint("Horizontal", 5),
    Sketcher.Constraint("Vertical", 6),
    Sketcher.Constraint("Horizontal", 7),
    Sketcher.Constraint("Vertical", 8),
    Sketcher.Constraint("Horizontal", 9),
    Sketcher.Constraint("Vertical", 10),
    Sketcher.Constraint("Horizontal", 11),
    Sketcher.Constraint("Horizontal", 3, 2, 10, 2),
    Sketcher.Constraint("DistanceX", 1, 1, 1, 2, Q("5500 mm")),
    Sketcher.Constraint("DistanceY", 0, 2, 0, 1, Q("2400 mm")),
    Sketcher.Constraint("DistanceY", 4, 2, 4, 1, Q("1000 mm")),
    Sketcher.Constraint("DistanceY", 8, 2, 8, 1, Q("400 mm")),
    Sketcher.Constraint("DistanceY", -1, 1, 0, 2, Q("100 mm")),
    Sketcher.Constraint("DistanceY", -1, 1, 4, 2, Q("1000 mm")),
    Sketcher.Constraint("DistanceX", 5, 2, 0, 2, Q("1850 mm")),
    Sketcher.Constraint("DistanceX", 8, 2, 6, 2, Q("6900 mm")),
    Sketcher.Constraint("DistanceX", 9, 2, 7, 2, Q("2100 mm")),
    Sketcher.Constraint("DistanceX", 5, 1, 5, 2, Q("2319.600827 mm")),
    Sketcher.Constraint("DistanceX", -1, 1, 0, 2, Q("2306.380744 mm")),
])
sketch11.setExpression("Constraints[25]", "Params.sketch11_width")
sketch11.setExpression("Constraints[26]", "Params.sketch11_height")
sketch11.setExpression("Constraints[27]", "Params.sketch11_height2")
sketch11.setExpression("Constraints[28]", "Params.sketch11_height3")
pocket8 = body.newObject("PartDesign::Pocket", "Pocket007")
pocket8.Profile = sketch11
pocket8.setExpression("Length", "Params.pocket8_length")

sketch12 = body.newObject("Sketcher::SketchObject", "Sketch011")
sketch12.AttachmentSupport = (doc.getObject("YZ_Plane"), [""])
sketch12.MapMode = "FlatFace"
sketch12.AttachmentOffset = App.Placement(Vector(0, 0, 8031.380744), App.Rotation())
add_polygon(sketch12, [(2000, -1795.256565), (1000, -1795.256565), (1000, -5145.256565), (2000, -5145.256565)])
add_polygon(sketch12, [(2500, 6204.743435), (100, 6204.743435), (100, 2204.743435), (2500, 2204.743435)])
add_polygon(sketch12, [(2500, 1604.743435), (100, 1604.743435), (100, 704.743435), (2500, 704.743435)])
sketch12.addConstraint([
    Sketcher.Constraint("Horizontal", 0),
    Sketcher.Constraint("Vertical", 1),
    Sketcher.Constraint("Horizontal", 2),
    Sketcher.Constraint("Vertical", 3),
    Sketcher.Constraint("Horizontal", 4),
    Sketcher.Constraint("Vertical", 5),
    Sketcher.Constraint("Horizontal", 6),
    Sketcher.Constraint("Vertical", 7),
    Sketcher.Constraint("Horizontal", 8),
    Sketcher.Constraint("Vertical", 9),
    Sketcher.Constraint("Horizontal", 10),
    Sketcher.Constraint("Vertical", 11),
    Sketcher.Constraint("Vertical", 5, 2, 8, 2),
    Sketcher.Constraint("Vertical", 7, 2, 10, 2),
    Sketcher.Constraint("DistanceX", 0, 2, 0, 1, Q("1000 mm")),
    Sketcher.Constraint("DistanceX", 4, 2, 4, 1, Q("2400 mm")),
    Sketcher.Constraint("DistanceY", 1, 2, 1, 1, Q("3350 mm")),
    Sketcher.Constraint("DistanceY", 5, 2, 5, 1, Q("4000 mm")),
    Sketcher.Constraint("DistanceY", 9, 2, 9, 1, Q("900 mm")),
    Sketcher.Constraint("DistanceX", -1, 1, 0, 2, Q("1000 mm")),
    Sketcher.Constraint("DistanceX", -1, 1, 4, 2, Q("100 mm")),
    Sketcher.Constraint("DistanceY", 0, 2, 4, 2, Q("8000 mm")),
    Sketcher.Constraint("DistanceY", 8, 2, 5, 2, Q("600 mm")),
    Sketcher.Constraint("DistanceY", 0, 2, -1, 1, Q("1795.256565 mm")),
])
sketch12.setExpression("Constraints[26]", "Params.sketch12_width")
sketch12.setExpression("Constraints[27]", "Params.sketch12_width2")
sketch12.setExpression("Constraints[28]", "Params.sketch12_height")
sketch12.setExpression("Constraints[29]", "Params.sketch12_height2")
sketch12.setExpression("Constraints[30]", "Params.sketch12_height3")
pad4 = body.newObject("PartDesign::Pad", "Pad003")
pad4.Profile = sketch12
pad4.setExpression("Length", "Params.pad4_length")
pad4.Reversed = True

sketch13 = body.newObject("Sketcher::SketchObject", "Sketch012")
sketch13.AttachmentSupport = (doc.getObject("YZ_Plane"), [""])
sketch13.MapMode = "FlatFace"
sketch13.AttachmentOffset = App.Placement(Vector(0, 0, -7018.619256), App.Rotation())
add_polygon(sketch13, [(2500, 704.743435), (1750, 704.743435), (1750, 1704.743435), (2500, 1704.743435)])
add_polygon(sketch13, [(2000, -5145.256565), (1000, -5145.256565), (1000, -1795.256565), (2000, -1795.256565)])
sketch13.addConstraint([
    Sketcher.Constraint("Horizontal", 0),
    Sketcher.Constraint("Vertical", 1),
    Sketcher.Constraint("Horizontal", 2),
    Sketcher.Constraint("Vertical", 3),
    Sketcher.Constraint("Horizontal", 4),
    Sketcher.Constraint("Vertical", 5),
    Sketcher.Constraint("Horizontal", 6),
    Sketcher.Constraint("Vertical", 7),
    Sketcher.Constraint("Equal", 6, 1),
    Sketcher.Constraint("DistanceX", 0, 2, 0, 1, Q("750 mm")),
    Sketcher.Constraint("DistanceX", 4, 2, 4, 1, Q("1000 mm")),
    Sketcher.Constraint("DistanceY", 5, 1, 5, 2, Q("3350 mm")),
    Sketcher.Constraint("DistanceX", -1, 1, 0, 2, Q("1750 mm")),
    Sketcher.Constraint("DistanceX", -1, 1, 4, 2, Q("1000 mm")),
    Sketcher.Constraint("DistanceY", 4, 2, 0, 2, Q("5850 mm")),
    Sketcher.Constraint("DistanceY", -1, 1, 0, 2, Q("704.743435 mm")),
])
sketch13.setExpression("Constraints[17]", "Params.sketch13_width")
sketch13.setExpression("Constraints[18]", "Params.sketch13_width2")
sketch13.setExpression("Constraints[19]", "Params.sketch13_height")
pad5 = body.newObject("PartDesign::Pad", "Pad004")
pad5.Profile = sketch13
pad5.setExpression("Length", "Params.pad5_length")

sketch14 = body.newObject("Sketcher::SketchObject", "Sketch013")
sketch14.AttachmentSupport = (doc.getObject("XY_Plane"), [""])
sketch14.MapMode = "FlatFace"
sketch14.AttachmentOffset = App.Placement(Vector(0, 0, -5620.256565), App.Rotation())
add_polygon(sketch14, [(7556.380744, 2000), (7556.380744, 1000), (4556.380744, 1000), (4556.380744, 2000)])
add_polygon(sketch14, [(-3543.619256, 2000), (-3543.619256, 1000), (-6543.619256, 1000), (-6543.619256, 2000)])
sketch14.addConstraint([
    Sketcher.Constraint("Vertical", 0),
    Sketcher.Constraint("Horizontal", 1),
    Sketcher.Constraint("Vertical", 2),
    Sketcher.Constraint("Horizontal", 3),
    Sketcher.Constraint("Vertical", 4),
    Sketcher.Constraint("Horizontal", 5),
    Sketcher.Constraint("Vertical", 6),
    Sketcher.Constraint("Horizontal", 7),
    Sketcher.Constraint("Horizontal", 1, 2, 4, 2),
    Sketcher.Constraint("Horizontal", 3, 2, 6, 2),
    Sketcher.Constraint("Equal", 3, 5),
    Sketcher.Constraint("DistanceX", 1, 2, 1, 1, Q("3000 mm")),
    Sketcher.Constraint("DistanceY", 0, 2, 0, 1, Q("1000 mm")),
    Sketcher.Constraint("DistanceY", -1, 1, 0, 2, Q("1000 mm")),
    Sketcher.Constraint("DistanceX", 4, 2, 1, 2, Q("8100 mm")),
    Sketcher.Constraint("DistanceX", -1, 1, 0, 2, Q("7556.380744 mm")),
])
sketch14.setExpression("Constraints[19]", "Params.sketch14_width")
sketch14.setExpression("Constraints[20]", "Params.sketch14_height")
pad6 = body.newObject("PartDesign::Pad", "Pad005")
pad6.Profile = sketch14
pad6.setExpression("Length", "Params.pad6_length")

sketch15 = body.newObject("Sketcher::SketchObject", "Sketch014")
sketch15.AttachmentSupport = (doc.getObject("XZ_Plane"), [""])
sketch15.MapMode = "FlatFace"
sketch15.AttachmentOffset = App.Placement(Vector(0, 0, -100), App.Rotation())
add_polygon(sketch15, [(-6943.619256, 4354.743435), (-5273.653016, 4354.743435), (-5273.653016, 4404.743435), (-3463.220083, 4404.743435), (-3463.220083, 4354.743435), (-5193.619256, 4354.743435), (-5193.619256, 4304.743435), (-6943.619256, 4304.743435)])
sketch15.addConstraint([
    Sketcher.Constraint("Horizontal", 0),
    Sketcher.Constraint("Vertical", 1),
    Sketcher.Constraint("Horizontal", 2),
    Sketcher.Constraint("Vertical", 3),
    Sketcher.Constraint("Horizontal", 4),
    Sketcher.Constraint("Vertical", 5),
    Sketcher.Constraint("Horizontal", 6),
    Sketcher.Constraint("Vertical", 7),
    Sketcher.Constraint("Horizontal", 0, 2, 3, 2),
    Sketcher.Constraint("Equal", 3, 5),
    Sketcher.Constraint("DistanceX", 6, 2, 6, 1, Q("1750 mm")),
    Sketcher.Constraint("DistanceY", 1, 1, 1, 2, Q("50 mm")),
    Sketcher.Constraint("DistanceX", 0, 1, 0, 2, Q("1669.96624 mm")),
    Sketcher.Constraint("DistanceX", 2, 1, 2, 2, Q("1810.432933 mm")),
    Sketcher.Constraint("DistanceX", 0, 2, -1, 1, Q("5273.653016 mm")),
    Sketcher.Constraint("DistanceY", -1, 1, 0, 2, Q("4354.743435 mm")),
])
sketch15.setExpression("Constraints[18]", "Params.sketch15_width")
sketch15.setExpression("Constraints[19]", "Params.sketch15_height")
pad7 = body.newObject("PartDesign::Pad", "Pad006")
pad7.Profile = sketch15
pad7.setExpression("Length", "Params.pad7_length")
pad7.Reversed = True
body2 = doc.addObject("PartDesign::Body", "Body001")

sketch16 = body2.newObject("Sketcher::SketchObject", "Sketch015")
sketch16.AttachmentSupport = (doc.getObject("XZ_Plane001"), [""])
sketch16.MapMode = "FlatFace"
sketch16.AttachmentOffset = App.Placement(Vector(0, 0, -100), App.Rotation())
add_polygon(sketch16, [(-3276.617542, 1904.743435), (-3363.220083, 1954.743435), (-2863.220083, 2820.768839), (-2776.617542, 2770.768839)])
sketch16.addConstraint([
    Sketcher.Constraint("Perpendicular", 0, 1),
    Sketcher.Constraint("Perpendicular", 1, 2),
    Sketcher.Constraint("Perpendicular", 2, 3),
    Sketcher.Constraint("Angle", 0, Q("150 deg")),
    Sketcher.Constraint("Distance", 0, Q("100 mm")),
    Sketcher.Constraint("Distance", 1, Q("1000 mm")),
    Sketcher.Constraint("DistanceY", -1, 1, 1, 2, Q("2820.768839 mm")),
    Sketcher.Constraint("DistanceX", 0, 2, -1, 1, Q("3363.220083 mm")),
])
sketch16.setExpression("Constraints[8]", "Params.sketch16_length")
sketch16.setExpression("Constraints[9]", "Params.sketch16_length2")
pad8 = body2.newObject("PartDesign::Pad", "Pad007")
pad8.Profile = sketch16
pad8.setExpression("Length", "Params.pad8_length")
pad8.Reversed = True
body3 = doc.addObject("PartDesign::Body", "Body002")

sketch17 = body3.newObject("Sketcher::SketchObject", "Sketch016")
sketch17.AttachmentSupport = (doc.getObject("XZ_Plane002"), [""])
sketch17.MapMode = "FlatFace"
sketch17.AttachmentOffset = App.Placement(Vector(0, 0, -100), App.Rotation())
add_polygon(sketch17, [(3556.380744, 354.743435), (3627.091422, 425.454113), (4334.198203, -281.652668), (4263.487525, -352.363346)])
sketch17.addConstraint([
    Sketcher.Constraint("Perpendicular", 0, 1),
    Sketcher.Constraint("Perpendicular", 1, 2),
    Sketcher.Constraint("Perpendicular", 2, 3),
    Sketcher.Constraint("Angle", 0, Q("45 deg")),
    Sketcher.Constraint("Distance", 0, Q("100 mm")),
    Sketcher.Constraint("Distance", 1, Q("1000 mm")),
    Sketcher.Constraint("DistanceY", 1, 2, -1, 1, Q("281.652668 mm")),
    Sketcher.Constraint("DistanceX", -1, 1, 0, 2, Q("3627.091422 mm")),
])
sketch17.setExpression("Constraints[8]", "Params.sketch17_length")
sketch17.setExpression("Constraints[9]", "Params.sketch17_length2")
pad9 = body3.newObject("PartDesign::Pad", "Pad008")
pad9.Profile = sketch17
pad9.setExpression("Length", "Params.pad9_length")
pad9.Reversed = True
body4 = doc.addObject("PartDesign::Body", "Body003")

sketch18 = body4.newObject("Sketcher::SketchObject", "Sketch017")
sketch18.AttachmentSupport = (doc.getObject("XZ_Plane003"), [""])
sketch18.MapMode = "FlatFace"
sketch18.AttachmentOffset = App.Placement(Vector(0, 0, -100), App.Rotation())
add_polygon(sketch18, [(2056.380744, 1854.743435), (2056.380744, 1954.743435), (3056.380744, 1954.743435), (3056.380744, 1854.743435)])
sketch18.addConstraint([
    Sketcher.Constraint("Vertical", 0),
    Sketcher.Constraint("Horizontal", 1),
    Sketcher.Constraint("Vertical", 2),
    Sketcher.Constraint("Horizontal", 3),
    Sketcher.Constraint("DistanceX", 1, 1, 1, 2, Q("1000 mm")),
    Sketcher.Constraint("DistanceY", 0, 1, 0, 2, Q("100 mm")),
    Sketcher.Constraint("DistanceX", -1, 1, 0, 2, Q("2056.380744 mm")),
    Sketcher.Constraint("DistanceY", -1, 1, 0, 2, Q("1954.743435 mm")),
])
sketch18.setExpression("Constraints[8]", "Params.sketch18_width")
sketch18.setExpression("Constraints[9]", "Params.sketch18_height")
pad10 = body4.newObject("PartDesign::Pad", "Pad009")
pad10.Profile = sketch18
pad10.setExpression("Length", "Params.pad10_length")
pad10.Reversed = True
body5 = doc.addObject("PartDesign::Body", "Body004")

sketch19 = body5.newObject("Sketcher::SketchObject", "Sketch018")
sketch19.AttachmentSupport = (doc.getObject("XZ_Plane004"), [""])
sketch19.MapMode = "FlatFace"
sketch19.AttachmentOffset = App.Placement(Vector(0, 0, -100), App.Rotation())
add_polygon(sketch19, [(-4859.4266, 454.743435), (-4859.4266, 554.743435), (-3463.220083, 554.743435), (-3463.220083, 454.743435)])
sketch19.addConstraint([
    Sketcher.Constraint("Vertical", 0),
    Sketcher.Constraint("Horizontal", 1),
    Sketcher.Constraint("Vertical", 2),
    Sketcher.Constraint("Horizontal", 3),
    Sketcher.Constraint("DistanceY", 0, 1, 0, 2, Q("100 mm")),
    Sketcher.Constraint("DistanceX", 0, 2, -1, 1, Q("4859.4266 mm")),
    Sketcher.Constraint("DistanceX", 1, 1, 1, 2, Q("1396.206517 mm")),
    Sketcher.Constraint("DistanceY", -1, 1, 0, 2, Q("554.743435 mm")),
])
sketch19.setExpression("Constraints[8]", "Params.sketch19_height")
pad11 = body5.newObject("PartDesign::Pad", "Pad010")
pad11.Profile = sketch19
pad11.setExpression("Length", "Params.pad11_length")
pad11.Reversed = True
body6 = doc.addObject("PartDesign::Body", "Body005")

sketch20 = body6.newObject("Sketcher::SketchObject", "Sketch019")
sketch20.AttachmentSupport = (doc.getObject("XZ_Plane005"), [""])
sketch20.MapMode = "FlatFace"
sketch20.AttachmentOffset = App.Placement(Vector(0, 0, -2750), App.Rotation())
add_polygon(sketch20, [(-6943.619256, 4304.743435), (-6943.619256, 4354.743435), (-6843.619256, 4354.743435), (-6843.619256, 4304.743435)])
sketch20.addConstraint([
    Sketcher.Constraint("Vertical", 0),
    Sketcher.Constraint("Horizontal", 1),
    Sketcher.Constraint("Vertical", 2),
    Sketcher.Constraint("Horizontal", 3),
    Sketcher.Constraint("DistanceX", 1, 1, 1, 2, Q("100 mm")),
    Sketcher.Constraint("DistanceY", 0, 1, 0, 2, Q("50 mm")),
    Sketcher.Constraint("DistanceX", 0, 2, -1, 1, Q("6943.619256 mm")),
    Sketcher.Constraint("DistanceY", -1, 1, 0, 2, Q("4354.743435 mm")),
])
sketch20.setExpression("Constraints[8]", "Params.sketch20_width")
sketch20.setExpression("Constraints[9]", "Params.sketch20_height")
pad12 = body6.newObject("PartDesign::Pad", "Pad011")
pad12.Profile = sketch20
pad12.setExpression("Length", "Params.pad12_length")
body7 = doc.addObject("PartDesign::Body", "Body006")

sketch21 = body7.newObject("Sketcher::SketchObject", "Sketch020")
sketch21.AttachmentSupport = (doc.getObject("XZ_Plane006"), [""])
sketch21.MapMode = "FlatFace"
sketch21.AttachmentOffset = App.Placement(Vector(0, 0, -2750), App.Rotation())
add_polygon(sketch21, [(-3563.220083, 4354.743435), (-3563.220083, 4404.743435), (-3463.220083, 4404.743435), (-3463.220083, 4354.743435)])
sketch21.addConstraint([
    Sketcher.Constraint("Vertical", 0),
    Sketcher.Constraint("Horizontal", 1),
    Sketcher.Constraint("Vertical", 2),
    Sketcher.Constraint("Horizontal", 3),
    Sketcher.Constraint("DistanceX", 1, 1, 1, 2, Q("100 mm")),
    Sketcher.Constraint("DistanceY", 0, 1, 0, 2, Q("50 mm")),
    Sketcher.Constraint("DistanceX", 0, 2, -1, 1, Q("3563.220083 mm")),
    Sketcher.Constraint("DistanceY", -1, 1, 0, 2, Q("4404.743435 mm")),
])
sketch21.setExpression("Constraints[8]", "Params.sketch21_width")
sketch21.setExpression("Constraints[9]", "Params.sketch21_height")
pad13 = body7.newObject("PartDesign::Pad", "Pad012")
pad13.Profile = sketch21
pad13.setExpression("Length", "Params.pad13_length")

doc.recompute()
